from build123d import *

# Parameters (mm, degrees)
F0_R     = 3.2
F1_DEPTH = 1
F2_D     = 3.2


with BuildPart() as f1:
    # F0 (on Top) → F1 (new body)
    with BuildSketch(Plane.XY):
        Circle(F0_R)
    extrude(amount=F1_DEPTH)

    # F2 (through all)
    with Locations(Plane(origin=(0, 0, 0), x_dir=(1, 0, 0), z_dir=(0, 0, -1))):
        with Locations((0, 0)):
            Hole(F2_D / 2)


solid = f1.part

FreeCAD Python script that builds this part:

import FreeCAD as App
import Part
import Sketcher

V = App.Vector
Q = App.Units.Quantity

doc = App.newDocument("Part")
body = doc.addObject("PartDesign::Body", "Body")

sketch1 = body.newObject("Sketcher::SketchObject", "Sketch")
sketch1.AttachmentSupport = (doc.getObject("XY_Plane"), [""])
sketch1.MapMode = "FlatFace"
sketch1.addGeometry(Part.Circle(V(0, 0, 0), V(0, 0, 1), 3.2), False)
sketch1.addConstraint([
    Sketcher.Constraint("Coincident", 0, 3, -1, 1),
    Sketcher.Constraint("Diameter", 0, Q("6.4 mm")),
])
pad1 = body.newObject("PartDesign::Pad", "Pad")
pad1.Profile = sketch1
pad1.Length = 1

sketch2 = body.newObject("Sketcher::SketchObject", "Sketch001")
sketch2.AttachmentSupport = (doc.getObject("XY_Plane"), [""])
sketch2.MapMode = "FlatFace"
sketch2.addGeometry(Part.Circle(V(0, 0, 0), V(0, 0, 1), 1.6), False)
sketch2.addConstraint([
    Sketcher.Constraint("Coincident", 0, 3, -1, 1),
    Sketcher.Constraint("Diameter", 0, Q("3.2 mm")),
])
doc.recompute()
hole = body.newObject("PartDesign::Hole", "Hole")
hole.Profile = sketch2
hole.ThreadType = "None"
hole.Diameter = 3.2
hole.DepthType = "ThroughAll"
hole.Reversed = True

doc.recompute()
